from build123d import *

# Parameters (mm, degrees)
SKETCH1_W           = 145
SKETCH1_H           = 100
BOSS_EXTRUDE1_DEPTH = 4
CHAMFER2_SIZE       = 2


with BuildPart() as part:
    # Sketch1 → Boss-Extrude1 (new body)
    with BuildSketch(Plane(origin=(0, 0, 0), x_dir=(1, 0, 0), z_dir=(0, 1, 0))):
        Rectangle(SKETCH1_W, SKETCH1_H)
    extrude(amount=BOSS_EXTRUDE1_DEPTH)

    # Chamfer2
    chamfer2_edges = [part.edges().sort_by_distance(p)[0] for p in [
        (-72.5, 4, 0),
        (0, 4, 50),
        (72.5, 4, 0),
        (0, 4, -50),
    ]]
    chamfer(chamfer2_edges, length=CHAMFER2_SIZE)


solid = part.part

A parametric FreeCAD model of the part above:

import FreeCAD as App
import Part
import Sketcher
from FreeCAD import Vector
Q = App.Units.Quantity


def edges_at(feature, points):
    """Names of the edges that pass closest to the given points."""
    edges = feature.Shape.Edges
    near = lambda p: min(range(len(edges)), key=lambda i: edges[i].distToShape(Part.Vertex(*p))[0])
    return sorted({f"Edge{near(p) + 1}" for p in points})

doc = App.newDocument("Part")
body = doc.addObject("PartDesign::Body", "Body")

# Sketch on XZ plane
sketch1 = body.newObject("Sketcher::SketchObject", "Sketch")
sketch1.AttachmentSupport = (doc.getObject("XZ_Plane"), [""])
sketch1.MapMode = "FlatFace"
sketch1.addGeometry(Part.LineSegment(Vector(-72.5, -50, 0), Vector(-72.5, 50, 0)), False)
sketch1.addGeometry(Part.LineSegment(Vector(-72.5, 50, 0), Vector(72.5, 50, 0)), False)
sketch1.addGeometry(Part.LineSegment(Vector(72.5, 50, 0), Vector(72.5, -50, 0)), False)
sketch1.addGeometry(Part.LineSegment(Vector(72.5, -50, 0), Vector(-72.5, -50, 0)), False)
sketch1.addConstraint(Sketcher.Constraint("Coincident", 0, 2, 1, 1))
sketch1.addConstraint(Sketcher.Constraint("Coincident", 1, 2, 2, 1))
sketch1.addConstraint(Sketcher.Constraint("Coincident", 2, 2, 3, 1))
sketch1.addConstraint(Sketcher.Constraint("Coincident", 3, 2, 0, 1))
sketch1.addConstraint(Sketcher.Constraint("Vertical", 0))
sketch1.addConstraint(Sketcher.Constraint("Horizontal", 1))
sketch1.addConstraint(Sketcher.Constraint("Vertical", 2))
sketch1.addConstraint(Sketcher.Constraint("Horizontal", 3))
sketch1.addConstraint(Sketcher.Constraint("Symmetric", 0, 2, 2, 2, -1, 1))
sketch1.addConstraint(Sketcher.Constraint("DistanceX", 1, 1, 1, 2, Q("145 mm")))
sketch1.addConstraint(Sketcher.Constraint("DistanceY", 0, 1, 0, 2, Q("100 mm")))
pad1 = body.newObject("PartDesign::Pad", "Pad")
pad1.Profile = sketch1
pad1.Length = 4
pad1.Reversed = True
doc.recompute()

chamfer = body.newObject("PartDesign::Chamfer", "Chamfer")
chamfer.Base = (pad1, edges_at(pad1, [
    (-72.5, 4, 0),
    (0, 4, 50),
    (72.5, 4, 0),
    (0, 4, -50),
]))
chamfer.Size = 2

doc.recompute()
